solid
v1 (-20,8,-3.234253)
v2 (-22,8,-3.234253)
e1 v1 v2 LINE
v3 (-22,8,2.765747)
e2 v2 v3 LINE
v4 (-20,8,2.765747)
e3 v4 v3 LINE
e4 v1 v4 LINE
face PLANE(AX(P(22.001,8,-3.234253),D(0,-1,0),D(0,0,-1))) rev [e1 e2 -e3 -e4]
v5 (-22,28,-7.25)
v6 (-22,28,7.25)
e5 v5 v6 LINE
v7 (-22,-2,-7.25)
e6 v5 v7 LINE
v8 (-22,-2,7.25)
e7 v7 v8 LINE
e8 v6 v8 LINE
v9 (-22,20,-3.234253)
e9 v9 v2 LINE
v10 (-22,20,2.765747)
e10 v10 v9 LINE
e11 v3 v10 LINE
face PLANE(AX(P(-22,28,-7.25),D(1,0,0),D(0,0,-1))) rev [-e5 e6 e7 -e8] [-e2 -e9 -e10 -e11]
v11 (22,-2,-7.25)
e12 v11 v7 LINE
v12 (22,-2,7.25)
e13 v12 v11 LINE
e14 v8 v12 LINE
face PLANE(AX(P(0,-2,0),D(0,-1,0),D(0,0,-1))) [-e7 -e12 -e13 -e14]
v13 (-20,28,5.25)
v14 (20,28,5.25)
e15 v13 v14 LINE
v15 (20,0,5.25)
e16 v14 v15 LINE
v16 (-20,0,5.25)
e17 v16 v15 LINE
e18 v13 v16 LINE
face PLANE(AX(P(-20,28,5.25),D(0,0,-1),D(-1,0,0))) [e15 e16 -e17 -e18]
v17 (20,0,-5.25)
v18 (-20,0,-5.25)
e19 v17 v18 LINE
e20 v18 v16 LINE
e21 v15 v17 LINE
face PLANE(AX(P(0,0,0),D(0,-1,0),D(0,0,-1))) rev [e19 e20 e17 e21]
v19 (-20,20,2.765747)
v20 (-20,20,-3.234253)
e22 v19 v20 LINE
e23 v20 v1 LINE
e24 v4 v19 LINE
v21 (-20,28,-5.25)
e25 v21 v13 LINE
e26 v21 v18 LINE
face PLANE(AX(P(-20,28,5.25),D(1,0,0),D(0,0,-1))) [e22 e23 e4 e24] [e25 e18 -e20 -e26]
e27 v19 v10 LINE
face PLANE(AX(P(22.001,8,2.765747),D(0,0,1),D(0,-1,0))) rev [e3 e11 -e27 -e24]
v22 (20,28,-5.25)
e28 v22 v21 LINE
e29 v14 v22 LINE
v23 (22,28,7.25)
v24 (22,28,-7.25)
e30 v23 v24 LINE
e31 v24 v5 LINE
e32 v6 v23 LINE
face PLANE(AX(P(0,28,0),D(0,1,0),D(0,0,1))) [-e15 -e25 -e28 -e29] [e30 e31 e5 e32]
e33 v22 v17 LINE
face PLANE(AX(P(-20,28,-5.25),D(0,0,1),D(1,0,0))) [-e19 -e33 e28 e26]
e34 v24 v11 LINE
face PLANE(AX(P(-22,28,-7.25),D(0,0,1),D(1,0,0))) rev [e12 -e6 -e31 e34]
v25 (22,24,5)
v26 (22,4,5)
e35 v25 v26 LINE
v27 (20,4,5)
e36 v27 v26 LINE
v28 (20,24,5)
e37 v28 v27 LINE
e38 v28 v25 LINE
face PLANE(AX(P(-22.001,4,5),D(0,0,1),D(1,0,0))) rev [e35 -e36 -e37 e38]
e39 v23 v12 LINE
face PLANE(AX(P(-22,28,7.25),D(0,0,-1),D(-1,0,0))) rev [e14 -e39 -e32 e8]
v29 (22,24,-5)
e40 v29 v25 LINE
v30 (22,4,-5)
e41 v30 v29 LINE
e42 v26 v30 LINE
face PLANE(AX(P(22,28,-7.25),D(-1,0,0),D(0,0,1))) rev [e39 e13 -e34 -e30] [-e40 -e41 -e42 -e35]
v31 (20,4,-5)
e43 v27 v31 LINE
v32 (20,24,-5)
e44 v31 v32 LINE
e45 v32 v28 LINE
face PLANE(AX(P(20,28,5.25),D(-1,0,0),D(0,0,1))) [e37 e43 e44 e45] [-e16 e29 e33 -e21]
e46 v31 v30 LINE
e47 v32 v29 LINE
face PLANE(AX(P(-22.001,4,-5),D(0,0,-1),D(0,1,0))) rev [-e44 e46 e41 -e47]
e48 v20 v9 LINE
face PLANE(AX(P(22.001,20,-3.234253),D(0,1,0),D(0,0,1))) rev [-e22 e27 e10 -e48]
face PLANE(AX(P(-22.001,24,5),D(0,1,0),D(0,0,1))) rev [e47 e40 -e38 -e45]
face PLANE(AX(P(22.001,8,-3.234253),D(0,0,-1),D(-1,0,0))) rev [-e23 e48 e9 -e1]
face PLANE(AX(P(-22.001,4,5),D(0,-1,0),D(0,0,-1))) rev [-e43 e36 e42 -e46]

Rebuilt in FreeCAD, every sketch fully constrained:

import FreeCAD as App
import Part
import Sketcher

V = App.Vector
Q = App.Units.Quantity


def add_polygon(sketch, points):
    """Adds a closed chain of lines whose ends are joined by coincident constraints."""
    first, n = sketch.GeometryCount, len(points)
    for a, b in zip(points, points[1:] + points[:1]):
        sketch.addGeometry(Part.LineSegment(App.Vector(*a, 0), App.Vector(*b, 0)), False)
    for i in range(n):
        sketch.addConstraint(Sketcher.Constraint("Coincident", first + i, 2, first + (i + 1) % n, 1))

doc = App.newDocument("Part")
body = doc.addObject("PartDesign::Body", "Body")

sketch1 = body.newObject("Sketcher::SketchObject", "Sketch")
sketch1.AttachmentSupport = (doc.getObject("XZ_Plane"), [""])
sketch1.MapMode = "FlatFace"
add_polygon(sketch1, [(-22, -7.25), (-22, 7.25), (22, 7.25), (22, -7.25)])
add_polygon(sketch1, [(20, 5.25), (-20, 5.25), (-20, -5.25), (20, -5.25)])
sketch1.addConstraint(Sketcher.Constraint("Vertical", 0))
sketch1.addConstraint(Sketcher.Constraint("Horizontal", 1))
sketch1.addConstraint(Sketcher.Constraint("Vertical", 2))
sketch1.addConstraint(Sketcher.Constraint("Horizontal", 3))
sketch1.addConstraint(Sketcher.Constraint("Horizontal", 4))
sketch1.addConstraint(Sketcher.Constraint("Vertical", 5))
sketch1.addConstraint(Sketcher.Constraint("Horizontal", 6))
sketch1.addConstraint(Sketcher.Constraint("Vertical", 7))
sketch1.addConstraint(Sketcher.Constraint("Symmetric", 0, 2, 2, 2, -1, 1))
sketch1.addConstraint(Sketcher.Constraint("Symmetric", 4, 2, 6, 2, -1, 1))
sketch1.addConstraint(Sketcher.Constraint("DistanceX", 1, 1, 1, 2, Q("44 mm")))
sketch1.addConstraint(Sketcher.Constraint("DistanceX", 4, 2, 4, 1, Q("40 mm")))
sketch1.addConstraint(Sketcher.Constraint("DistanceY", 0, 1, 0, 2, Q("14.5 mm")))
sketch1.addConstraint(Sketcher.Constraint("DistanceY", 5, 2, 5, 1, Q("10.5 mm")))
pad1 = body.newObject("PartDesign::Pad", "Pad")
pad1.Profile = sketch1
pad1.Length = 28
pad1.Reversed = True

sketch2 = body.newObject("Sketcher::SketchObject", "Sketch001")
sketch2.AttachmentSupport = (doc.getObject("XZ_Plane"), [""])
sketch2.MapMode = "FlatFace"
add_polygon(sketch2, [(-22, -7.25), (-22, 7.25), (22, 7.25), (22, -7.25)])
sketch2.addConstraint(Sketcher.Constraint("Vertical", 0))
sketch2.addConstraint(Sketcher.Constraint("Horizontal", 1))
sketch2.addConstraint(Sketcher.Constraint("Vertical", 2))
sketch2.addConstraint(Sketcher.Constraint("Horizontal", 3))
sketch2.addConstraint(Sketcher.Constraint("Symmetric", 0, 2, 2, 2, -1, 1))
sketch2.addConstraint(Sketcher.Constraint("DistanceX", 1, 1, 1, 2, Q("44 mm")))
sketch2.addConstraint(Sketcher.Constraint("DistanceY", 0, 1, 0, 2, Q("14.5 mm")))
pad2 = body.newObject("PartDesign::Pad", "Pad001")
pad2.Profile = sketch2
pad2.Length = 2

sketch3 = body.newObject("Sketcher::SketchObject", "Sketch002")
sketch3.AttachmentSupport = (doc.getObject("YZ_Plane"), [""])
sketch3.MapMode = "FlatFace"
sketch3.AttachmentOffset = App.Placement(V(0, 0, -22), App.Rotation())
add_polygon(sketch3, [(20, -3.234253), (8, -3.234253), (8, 2.765747), (20, 2.765747)])
sketch3.addConstraint(Sketcher.Constraint("Horizontal", 0))
sketch3.addConstraint(Sketcher.Constraint("Vertical", 1))
sketch3.addConstraint(Sketcher.Constraint("Horizontal", 2))
sketch3.addConstraint(Sketcher.Constraint("Vertical", 3))
sketch3.addConstraint(Sketcher.Constraint("DistanceX", 0, 2, 0, 1, Q("12 mm")))
sketch3.addConstraint(Sketcher.Constraint("DistanceY", 1, 1, 1, 2, Q("6 mm")))
sketch3.addConstraint(Sketcher.Constraint("DistanceX", -1, 1, 0, 2, Q("8 mm")))
sketch3.addConstraint(Sketcher.Constraint("DistanceY", 0, 2, -1, 1, Q("3.234253 mm")))
pocket1 = body.newObject("PartDesign::Pocket", "Pocket")
pocket1.Profile = sketch3
pocket1.Type = "UpToFirst"
pocket1.Reversed = True

sketch4 = body.newObject("Sketcher::SketchObject", "Sketch003")
sketch4.AttachmentSupport = (doc.getObject("YZ_Plane"), [""])
sketch4.MapMode = "FlatFace"
sketch4.AttachmentOffset = App.Placement(V(0, 0, 22), App.Rotation())
add_polygon(sketch4, [(24, 5), (4, 5), (4, -5), (24, -5)])
sketch4.addConstraint(Sketcher.Constraint("Horizontal", 0))
sketch4.addConstraint(Sketcher.Constraint("Vertical", 1))
sketch4.addConstraint(Sketcher.Constraint("Horizontal", 2))
sketch4.addConstraint(Sketcher.Constraint("Vertical", 3))
sketch4.addConstraint(Sketcher.Constraint("DistanceX", 0, 2, 0, 1, Q("20 mm")))
sketch4.addConstraint(Sketcher.Constraint("DistanceY", 1, 2, 1, 1, Q("10 mm")))
sketch4.addConstraint(Sketcher.Constraint("DistanceX", -1, 1, 0, 2, Q("4 mm")))
sketch4.addConstraint(Sketcher.Constraint("DistanceY", -1, 1, 0, 2, Q("5 mm")))
pocket2 = body.newObject("PartDesign::Pocket", "Pocket001")
pocket2.Profile = sketch4
pocket2.Type = "UpToFirst"

doc.recompute()
